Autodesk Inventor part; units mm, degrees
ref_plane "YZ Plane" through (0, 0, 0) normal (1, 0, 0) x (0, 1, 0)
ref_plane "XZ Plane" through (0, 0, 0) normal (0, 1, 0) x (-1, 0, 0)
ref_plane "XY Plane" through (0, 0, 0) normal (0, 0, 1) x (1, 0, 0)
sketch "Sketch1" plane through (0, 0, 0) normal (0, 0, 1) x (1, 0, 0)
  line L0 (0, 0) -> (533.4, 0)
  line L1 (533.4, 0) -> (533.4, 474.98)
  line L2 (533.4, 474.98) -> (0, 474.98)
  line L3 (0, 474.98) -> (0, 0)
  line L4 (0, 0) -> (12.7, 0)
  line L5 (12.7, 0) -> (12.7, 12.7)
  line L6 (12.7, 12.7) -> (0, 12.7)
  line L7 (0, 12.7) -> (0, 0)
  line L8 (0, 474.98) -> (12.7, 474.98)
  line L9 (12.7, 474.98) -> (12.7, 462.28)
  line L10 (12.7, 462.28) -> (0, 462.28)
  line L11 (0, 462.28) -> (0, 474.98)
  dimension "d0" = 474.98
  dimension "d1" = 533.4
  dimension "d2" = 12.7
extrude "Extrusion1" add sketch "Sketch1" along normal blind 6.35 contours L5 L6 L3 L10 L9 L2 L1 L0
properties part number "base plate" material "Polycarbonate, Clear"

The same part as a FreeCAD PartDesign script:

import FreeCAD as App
import Part
import Sketcher
Q = App.Units.Quantity


def add_polygon(sketch, points):
    """Adds a closed chain of lines whose ends are joined by coincident constraints."""
    first, n = sketch.GeometryCount, len(points)
    for a, b in zip(points, points[1:] + points[:1]):
        sketch.addGeometry(Part.LineSegment(App.Vector(*a, 0), App.Vector(*b, 0)), False)
    for i in range(n):
        sketch.addConstraint(Sketcher.Constraint("Coincident", first + i, 2, first + (i + 1) % n, 1))

doc = App.newDocument("Part")
body = doc.addObject("PartDesign::Body", "Body")

sketch1 = body.newObject("Sketcher::SketchObject", "Sketch")
sketch1.AttachmentSupport = (doc.getObject("XY_Plane"), [""])
sketch1.MapMode = "FlatFace"
add_polygon(sketch1, [(13, 13), (13, 0), (533, 0), (533, 475), (13, 475), (13, 462), (0, 462), (0, 13)])
sketch1.addConstraint([
    Sketcher.Constraint("Vertical", 0),
    Sketcher.Constraint("Horizontal", 1),
    Sketcher.Constraint("Vertical", 2),
    Sketcher.Constraint("Horizontal", 3),
    Sketcher.Constraint("Vertical", 4),
    Sketcher.Constraint("Horizontal", 5),
    Sketcher.Constraint("Vertical", 6),
    Sketcher.Constraint("Horizontal", 7),
    Sketcher.Constraint("PointOnObject", 0, 2, -1),
    Sketcher.Constraint("PointOnObject", 5, 2, -2),
    Sketcher.Constraint("Vertical", 0, 2, 3, 2),
    Sketcher.Constraint("Equal", 7, 0),
    Sketcher.Constraint("Equal", 0, 4),
    Sketcher.Constraint("DistanceX", 5, 2, 5, 1, Q("0.5 in")),
    Sketcher.Constraint("DistanceY", 2, 1, 2, 2, Q("18.7 in")),
    Sketcher.Constraint("DistanceX", -1, 1, 1, 2, Q("21 in")),
])
pad1 = body.newObject("PartDesign::Pad", "Pad")
pad1.Profile = sketch1
pad1.Length = Q("0.25 in")

doc.recompute()
